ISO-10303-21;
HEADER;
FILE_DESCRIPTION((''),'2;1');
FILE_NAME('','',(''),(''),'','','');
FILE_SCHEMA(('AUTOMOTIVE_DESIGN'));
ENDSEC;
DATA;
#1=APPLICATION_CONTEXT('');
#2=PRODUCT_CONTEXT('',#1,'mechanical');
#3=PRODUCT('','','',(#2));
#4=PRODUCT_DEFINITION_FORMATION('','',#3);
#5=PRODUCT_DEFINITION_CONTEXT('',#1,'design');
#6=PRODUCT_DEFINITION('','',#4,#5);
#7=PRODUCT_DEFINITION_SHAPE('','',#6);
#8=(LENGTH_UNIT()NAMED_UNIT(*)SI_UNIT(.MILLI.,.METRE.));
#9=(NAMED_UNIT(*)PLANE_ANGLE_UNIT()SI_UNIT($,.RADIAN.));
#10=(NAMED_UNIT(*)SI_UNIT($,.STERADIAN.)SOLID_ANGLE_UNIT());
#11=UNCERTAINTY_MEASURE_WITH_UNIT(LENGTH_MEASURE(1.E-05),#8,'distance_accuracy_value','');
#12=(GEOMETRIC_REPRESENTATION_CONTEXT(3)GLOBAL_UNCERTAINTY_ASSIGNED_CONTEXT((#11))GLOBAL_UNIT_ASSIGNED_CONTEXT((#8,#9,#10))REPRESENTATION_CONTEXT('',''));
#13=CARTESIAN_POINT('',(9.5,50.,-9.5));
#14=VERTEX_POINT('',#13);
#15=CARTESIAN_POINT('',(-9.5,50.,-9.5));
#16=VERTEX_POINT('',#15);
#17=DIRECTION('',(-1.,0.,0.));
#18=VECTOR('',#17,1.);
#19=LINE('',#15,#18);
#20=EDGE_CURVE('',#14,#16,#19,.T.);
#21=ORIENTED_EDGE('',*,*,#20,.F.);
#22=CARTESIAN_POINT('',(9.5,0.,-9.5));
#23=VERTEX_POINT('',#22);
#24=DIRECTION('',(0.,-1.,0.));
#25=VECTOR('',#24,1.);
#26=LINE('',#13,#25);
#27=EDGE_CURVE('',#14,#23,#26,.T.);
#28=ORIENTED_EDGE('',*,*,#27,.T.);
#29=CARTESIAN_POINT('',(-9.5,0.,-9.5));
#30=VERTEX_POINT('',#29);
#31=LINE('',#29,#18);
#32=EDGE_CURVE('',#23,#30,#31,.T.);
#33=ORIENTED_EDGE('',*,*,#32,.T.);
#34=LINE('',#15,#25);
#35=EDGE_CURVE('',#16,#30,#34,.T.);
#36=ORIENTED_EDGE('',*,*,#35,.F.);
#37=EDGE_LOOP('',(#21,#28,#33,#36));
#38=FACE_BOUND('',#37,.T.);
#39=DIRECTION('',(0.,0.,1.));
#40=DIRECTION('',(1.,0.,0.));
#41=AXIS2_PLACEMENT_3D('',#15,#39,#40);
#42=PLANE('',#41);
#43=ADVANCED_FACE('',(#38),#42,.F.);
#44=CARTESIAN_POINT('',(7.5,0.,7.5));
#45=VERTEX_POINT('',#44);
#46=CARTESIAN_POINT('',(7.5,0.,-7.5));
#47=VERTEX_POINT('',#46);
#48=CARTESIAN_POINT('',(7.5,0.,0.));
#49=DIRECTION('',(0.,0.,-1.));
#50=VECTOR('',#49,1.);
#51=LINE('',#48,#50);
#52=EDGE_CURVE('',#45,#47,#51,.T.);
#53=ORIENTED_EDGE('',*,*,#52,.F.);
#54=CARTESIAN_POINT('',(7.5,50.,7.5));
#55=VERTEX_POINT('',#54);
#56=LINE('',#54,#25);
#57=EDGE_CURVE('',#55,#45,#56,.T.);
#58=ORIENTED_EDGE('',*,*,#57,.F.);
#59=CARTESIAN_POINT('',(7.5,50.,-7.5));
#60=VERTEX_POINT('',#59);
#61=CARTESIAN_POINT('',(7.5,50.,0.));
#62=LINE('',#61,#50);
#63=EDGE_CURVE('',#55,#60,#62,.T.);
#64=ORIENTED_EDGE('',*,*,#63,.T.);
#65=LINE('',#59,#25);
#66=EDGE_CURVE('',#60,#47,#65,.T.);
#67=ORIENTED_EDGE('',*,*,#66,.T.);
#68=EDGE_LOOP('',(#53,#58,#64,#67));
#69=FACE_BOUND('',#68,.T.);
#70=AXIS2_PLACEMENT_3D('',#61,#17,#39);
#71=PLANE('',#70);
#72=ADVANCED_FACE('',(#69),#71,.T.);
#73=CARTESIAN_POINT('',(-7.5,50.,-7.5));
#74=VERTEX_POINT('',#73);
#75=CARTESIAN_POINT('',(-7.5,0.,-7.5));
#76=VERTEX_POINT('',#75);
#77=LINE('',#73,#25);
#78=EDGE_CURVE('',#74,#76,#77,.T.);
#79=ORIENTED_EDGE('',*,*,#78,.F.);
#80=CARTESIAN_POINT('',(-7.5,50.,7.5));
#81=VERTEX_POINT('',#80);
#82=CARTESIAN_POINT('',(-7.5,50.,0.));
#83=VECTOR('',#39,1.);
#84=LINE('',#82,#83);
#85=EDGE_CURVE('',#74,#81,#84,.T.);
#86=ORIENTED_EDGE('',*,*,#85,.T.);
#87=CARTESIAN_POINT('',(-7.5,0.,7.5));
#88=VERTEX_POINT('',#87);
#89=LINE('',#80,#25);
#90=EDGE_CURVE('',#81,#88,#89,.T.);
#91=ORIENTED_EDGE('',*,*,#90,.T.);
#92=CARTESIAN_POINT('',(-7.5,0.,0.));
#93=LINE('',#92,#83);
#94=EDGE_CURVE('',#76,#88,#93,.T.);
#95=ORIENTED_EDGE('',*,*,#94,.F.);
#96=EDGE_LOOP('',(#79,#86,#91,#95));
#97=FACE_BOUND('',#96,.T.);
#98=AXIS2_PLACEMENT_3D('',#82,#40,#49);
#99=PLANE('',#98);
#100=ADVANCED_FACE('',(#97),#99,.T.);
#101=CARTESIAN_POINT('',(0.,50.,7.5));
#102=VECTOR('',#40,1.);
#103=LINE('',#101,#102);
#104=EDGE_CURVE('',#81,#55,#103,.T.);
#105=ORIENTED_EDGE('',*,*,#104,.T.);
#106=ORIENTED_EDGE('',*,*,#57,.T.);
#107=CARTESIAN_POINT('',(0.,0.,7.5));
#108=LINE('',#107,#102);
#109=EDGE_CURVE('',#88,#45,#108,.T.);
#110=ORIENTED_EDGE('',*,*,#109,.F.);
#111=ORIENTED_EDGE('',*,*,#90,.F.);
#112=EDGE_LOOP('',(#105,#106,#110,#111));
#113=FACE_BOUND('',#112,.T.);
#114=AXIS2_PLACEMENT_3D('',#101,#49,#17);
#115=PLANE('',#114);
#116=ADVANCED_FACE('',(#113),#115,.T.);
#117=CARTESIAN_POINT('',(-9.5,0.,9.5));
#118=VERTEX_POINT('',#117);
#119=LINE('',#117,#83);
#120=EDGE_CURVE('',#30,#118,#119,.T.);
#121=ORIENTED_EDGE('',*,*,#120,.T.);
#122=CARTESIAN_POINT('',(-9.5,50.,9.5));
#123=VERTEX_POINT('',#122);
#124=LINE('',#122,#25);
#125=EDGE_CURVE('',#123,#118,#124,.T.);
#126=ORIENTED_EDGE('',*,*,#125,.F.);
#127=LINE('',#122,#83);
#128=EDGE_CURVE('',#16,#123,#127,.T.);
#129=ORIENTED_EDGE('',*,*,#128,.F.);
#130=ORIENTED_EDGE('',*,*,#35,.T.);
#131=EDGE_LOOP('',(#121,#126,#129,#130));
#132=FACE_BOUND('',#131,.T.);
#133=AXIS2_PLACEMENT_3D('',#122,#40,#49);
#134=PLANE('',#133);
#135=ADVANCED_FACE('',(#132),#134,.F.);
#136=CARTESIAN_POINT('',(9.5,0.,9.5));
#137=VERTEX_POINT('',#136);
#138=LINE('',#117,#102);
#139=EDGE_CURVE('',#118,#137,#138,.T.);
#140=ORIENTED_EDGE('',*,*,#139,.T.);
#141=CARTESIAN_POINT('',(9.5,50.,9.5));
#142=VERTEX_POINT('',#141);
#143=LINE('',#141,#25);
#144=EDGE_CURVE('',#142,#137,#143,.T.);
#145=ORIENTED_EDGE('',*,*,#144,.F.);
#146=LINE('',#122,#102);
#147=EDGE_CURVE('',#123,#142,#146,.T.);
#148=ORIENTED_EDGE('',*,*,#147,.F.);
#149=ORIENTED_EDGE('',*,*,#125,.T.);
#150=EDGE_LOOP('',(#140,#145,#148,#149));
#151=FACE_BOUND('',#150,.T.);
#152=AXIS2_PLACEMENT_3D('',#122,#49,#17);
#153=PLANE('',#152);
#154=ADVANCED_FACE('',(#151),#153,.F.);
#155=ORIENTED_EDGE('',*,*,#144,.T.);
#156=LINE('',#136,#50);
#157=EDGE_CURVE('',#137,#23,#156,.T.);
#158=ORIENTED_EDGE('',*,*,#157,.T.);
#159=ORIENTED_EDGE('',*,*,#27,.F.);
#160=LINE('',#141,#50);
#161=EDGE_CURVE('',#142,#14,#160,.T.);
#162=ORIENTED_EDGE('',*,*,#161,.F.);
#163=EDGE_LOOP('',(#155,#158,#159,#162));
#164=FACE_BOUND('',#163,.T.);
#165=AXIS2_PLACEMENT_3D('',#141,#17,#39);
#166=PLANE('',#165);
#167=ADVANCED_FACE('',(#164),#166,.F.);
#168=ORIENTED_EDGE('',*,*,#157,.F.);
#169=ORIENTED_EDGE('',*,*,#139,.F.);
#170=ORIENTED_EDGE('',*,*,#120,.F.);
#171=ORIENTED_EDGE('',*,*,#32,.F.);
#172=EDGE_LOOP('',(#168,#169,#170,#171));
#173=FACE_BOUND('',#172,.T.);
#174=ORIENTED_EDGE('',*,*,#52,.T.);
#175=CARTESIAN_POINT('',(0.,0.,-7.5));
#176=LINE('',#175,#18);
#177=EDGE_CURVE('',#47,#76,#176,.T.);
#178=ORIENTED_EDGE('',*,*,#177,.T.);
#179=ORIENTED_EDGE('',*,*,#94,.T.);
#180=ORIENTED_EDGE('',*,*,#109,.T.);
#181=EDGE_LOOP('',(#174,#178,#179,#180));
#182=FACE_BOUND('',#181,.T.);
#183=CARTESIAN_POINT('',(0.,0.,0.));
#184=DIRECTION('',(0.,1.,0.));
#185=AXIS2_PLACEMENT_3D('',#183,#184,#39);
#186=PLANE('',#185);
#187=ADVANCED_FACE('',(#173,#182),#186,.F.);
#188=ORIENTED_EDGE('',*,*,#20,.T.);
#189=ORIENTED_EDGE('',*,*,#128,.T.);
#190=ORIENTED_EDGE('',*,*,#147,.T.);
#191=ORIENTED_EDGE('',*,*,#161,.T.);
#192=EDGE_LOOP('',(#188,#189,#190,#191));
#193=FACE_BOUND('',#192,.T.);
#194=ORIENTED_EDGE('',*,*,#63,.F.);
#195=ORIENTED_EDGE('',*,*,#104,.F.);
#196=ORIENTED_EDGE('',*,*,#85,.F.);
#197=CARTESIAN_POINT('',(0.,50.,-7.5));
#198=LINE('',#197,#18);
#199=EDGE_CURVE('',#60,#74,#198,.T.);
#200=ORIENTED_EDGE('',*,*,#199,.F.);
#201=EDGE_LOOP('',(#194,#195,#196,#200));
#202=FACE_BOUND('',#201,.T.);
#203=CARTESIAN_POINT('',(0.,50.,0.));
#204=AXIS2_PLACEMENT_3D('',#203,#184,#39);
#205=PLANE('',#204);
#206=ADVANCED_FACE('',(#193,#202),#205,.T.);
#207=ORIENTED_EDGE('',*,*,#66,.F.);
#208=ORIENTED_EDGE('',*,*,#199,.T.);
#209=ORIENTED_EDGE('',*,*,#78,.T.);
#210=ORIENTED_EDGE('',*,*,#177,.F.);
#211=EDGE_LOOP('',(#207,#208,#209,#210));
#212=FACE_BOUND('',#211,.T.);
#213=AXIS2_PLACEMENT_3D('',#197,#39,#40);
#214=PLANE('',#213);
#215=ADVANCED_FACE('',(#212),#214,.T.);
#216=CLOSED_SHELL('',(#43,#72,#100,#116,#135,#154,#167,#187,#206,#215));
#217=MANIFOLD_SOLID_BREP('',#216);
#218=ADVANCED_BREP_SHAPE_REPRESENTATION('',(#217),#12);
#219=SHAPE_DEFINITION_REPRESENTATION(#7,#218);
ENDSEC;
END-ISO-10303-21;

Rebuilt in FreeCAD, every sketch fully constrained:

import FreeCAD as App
import Part
import Sketcher

doc = App.newDocument("Part")
params = doc.addObject("Spreadsheet::Sheet", "Params")
for row, (alias, value) in enumerate([
    ("sketch1_width", "19 mm"),
    ("sketch1_width2", "15 mm"),
    ("pad1_length", "50 mm"),
], start=1):
    params.set(f"A{row}", alias)
    params.set(f"B{row}", "=" + value)
    params.setAlias(f"B{row}", alias)

body = doc.addObject("PartDesign::Body", "Body")

# Sketch on XZ plane
sketch1 = body.newObject("Sketcher::SketchObject", "Sketch")
sketch1.AttachmentSupport = (doc.getObject("XZ_Plane"), [""])
sketch1.MapMode = "FlatFace"
sketch1.addGeometry([
    Part.LineSegment(App.Vector(-10, -10, 0), App.Vector(-10, 10, 0)),  # 0
    Part.LineSegment(App.Vector(-10, 10, 0), App.Vector(10, 10, 0)),  # 1
    Part.LineSegment(App.Vector(10, 10, 0), App.Vector(10, -10, 0)),  # 2
    Part.LineSegment(App.Vector(10, -10, 0), App.Vector(-10, -10, 0)),  # 3
    Part.LineSegment(App.Vector(8, 8, 0), App.Vector(-8, 8, 0)),  # 4
    Part.LineSegment(App.Vector(-8, 8, 0), App.Vector(-8, -8, 0)),  # 5
    Part.LineSegment(App.Vector(-8, -8, 0), App.Vector(8, -8, 0)),  # 6
    Part.LineSegment(App.Vector(8, -8, 0), App.Vector(8, 8, 0)),  # 7
], False)
sketch1.addConstraint([
    Sketcher.Constraint("Coincident", 0, 2, 1, 1),
    Sketcher.Constraint("Coincident", 1, 2, 2, 1),
    Sketcher.Constraint("Coincident", 2, 2, 3, 1),
    Sketcher.Constraint("Coincident", 3, 2, 0, 1),
    Sketcher.Constraint("Coincident", 4, 2, 5, 1),
    Sketcher.Constraint("Coincident", 5, 2, 6, 1),
    Sketcher.Constraint("Coincident", 6, 2, 7, 1),
    Sketcher.Constraint("Coincident", 7, 2, 4, 1),
    Sketcher.Constraint("Vertical", 0),
    Sketcher.Constraint("Horizontal", 1),
    Sketcher.Constraint("Vertical", 2),
    Sketcher.Constraint("Horizontal", 3),
    Sketcher.Constraint("Horizontal", 4),
    Sketcher.Constraint("Vertical", 5),
    Sketcher.Constraint("Horizontal", 6),
    Sketcher.Constraint("Vertical", 7),
    Sketcher.Constraint("Symmetric", 0, 2, 2, 2, -1, 1),
    Sketcher.Constraint("Symmetric", 4, 2, 6, 2, -1, 1),
    Sketcher.Constraint("Equal", 3, 0),
    Sketcher.Constraint("Equal", 6, 5),
    Sketcher.Constraint("DistanceX", 1, 1, 1, 2, 19.0),
    Sketcher.Constraint("DistanceX", 4, 2, 4, 1, 15.0),
])
sketch1.setExpression("Constraints[20]", "Params.sketch1_width")
sketch1.setExpression("Constraints[21]", "Params.sketch1_width2")
pad1 = body.newObject("PartDesign::Pad", "Pad")
pad1.Profile = sketch1
pad1.setExpression("Length", "Params.pad1_length")
pad1.Reversed = True

doc.recompute()
